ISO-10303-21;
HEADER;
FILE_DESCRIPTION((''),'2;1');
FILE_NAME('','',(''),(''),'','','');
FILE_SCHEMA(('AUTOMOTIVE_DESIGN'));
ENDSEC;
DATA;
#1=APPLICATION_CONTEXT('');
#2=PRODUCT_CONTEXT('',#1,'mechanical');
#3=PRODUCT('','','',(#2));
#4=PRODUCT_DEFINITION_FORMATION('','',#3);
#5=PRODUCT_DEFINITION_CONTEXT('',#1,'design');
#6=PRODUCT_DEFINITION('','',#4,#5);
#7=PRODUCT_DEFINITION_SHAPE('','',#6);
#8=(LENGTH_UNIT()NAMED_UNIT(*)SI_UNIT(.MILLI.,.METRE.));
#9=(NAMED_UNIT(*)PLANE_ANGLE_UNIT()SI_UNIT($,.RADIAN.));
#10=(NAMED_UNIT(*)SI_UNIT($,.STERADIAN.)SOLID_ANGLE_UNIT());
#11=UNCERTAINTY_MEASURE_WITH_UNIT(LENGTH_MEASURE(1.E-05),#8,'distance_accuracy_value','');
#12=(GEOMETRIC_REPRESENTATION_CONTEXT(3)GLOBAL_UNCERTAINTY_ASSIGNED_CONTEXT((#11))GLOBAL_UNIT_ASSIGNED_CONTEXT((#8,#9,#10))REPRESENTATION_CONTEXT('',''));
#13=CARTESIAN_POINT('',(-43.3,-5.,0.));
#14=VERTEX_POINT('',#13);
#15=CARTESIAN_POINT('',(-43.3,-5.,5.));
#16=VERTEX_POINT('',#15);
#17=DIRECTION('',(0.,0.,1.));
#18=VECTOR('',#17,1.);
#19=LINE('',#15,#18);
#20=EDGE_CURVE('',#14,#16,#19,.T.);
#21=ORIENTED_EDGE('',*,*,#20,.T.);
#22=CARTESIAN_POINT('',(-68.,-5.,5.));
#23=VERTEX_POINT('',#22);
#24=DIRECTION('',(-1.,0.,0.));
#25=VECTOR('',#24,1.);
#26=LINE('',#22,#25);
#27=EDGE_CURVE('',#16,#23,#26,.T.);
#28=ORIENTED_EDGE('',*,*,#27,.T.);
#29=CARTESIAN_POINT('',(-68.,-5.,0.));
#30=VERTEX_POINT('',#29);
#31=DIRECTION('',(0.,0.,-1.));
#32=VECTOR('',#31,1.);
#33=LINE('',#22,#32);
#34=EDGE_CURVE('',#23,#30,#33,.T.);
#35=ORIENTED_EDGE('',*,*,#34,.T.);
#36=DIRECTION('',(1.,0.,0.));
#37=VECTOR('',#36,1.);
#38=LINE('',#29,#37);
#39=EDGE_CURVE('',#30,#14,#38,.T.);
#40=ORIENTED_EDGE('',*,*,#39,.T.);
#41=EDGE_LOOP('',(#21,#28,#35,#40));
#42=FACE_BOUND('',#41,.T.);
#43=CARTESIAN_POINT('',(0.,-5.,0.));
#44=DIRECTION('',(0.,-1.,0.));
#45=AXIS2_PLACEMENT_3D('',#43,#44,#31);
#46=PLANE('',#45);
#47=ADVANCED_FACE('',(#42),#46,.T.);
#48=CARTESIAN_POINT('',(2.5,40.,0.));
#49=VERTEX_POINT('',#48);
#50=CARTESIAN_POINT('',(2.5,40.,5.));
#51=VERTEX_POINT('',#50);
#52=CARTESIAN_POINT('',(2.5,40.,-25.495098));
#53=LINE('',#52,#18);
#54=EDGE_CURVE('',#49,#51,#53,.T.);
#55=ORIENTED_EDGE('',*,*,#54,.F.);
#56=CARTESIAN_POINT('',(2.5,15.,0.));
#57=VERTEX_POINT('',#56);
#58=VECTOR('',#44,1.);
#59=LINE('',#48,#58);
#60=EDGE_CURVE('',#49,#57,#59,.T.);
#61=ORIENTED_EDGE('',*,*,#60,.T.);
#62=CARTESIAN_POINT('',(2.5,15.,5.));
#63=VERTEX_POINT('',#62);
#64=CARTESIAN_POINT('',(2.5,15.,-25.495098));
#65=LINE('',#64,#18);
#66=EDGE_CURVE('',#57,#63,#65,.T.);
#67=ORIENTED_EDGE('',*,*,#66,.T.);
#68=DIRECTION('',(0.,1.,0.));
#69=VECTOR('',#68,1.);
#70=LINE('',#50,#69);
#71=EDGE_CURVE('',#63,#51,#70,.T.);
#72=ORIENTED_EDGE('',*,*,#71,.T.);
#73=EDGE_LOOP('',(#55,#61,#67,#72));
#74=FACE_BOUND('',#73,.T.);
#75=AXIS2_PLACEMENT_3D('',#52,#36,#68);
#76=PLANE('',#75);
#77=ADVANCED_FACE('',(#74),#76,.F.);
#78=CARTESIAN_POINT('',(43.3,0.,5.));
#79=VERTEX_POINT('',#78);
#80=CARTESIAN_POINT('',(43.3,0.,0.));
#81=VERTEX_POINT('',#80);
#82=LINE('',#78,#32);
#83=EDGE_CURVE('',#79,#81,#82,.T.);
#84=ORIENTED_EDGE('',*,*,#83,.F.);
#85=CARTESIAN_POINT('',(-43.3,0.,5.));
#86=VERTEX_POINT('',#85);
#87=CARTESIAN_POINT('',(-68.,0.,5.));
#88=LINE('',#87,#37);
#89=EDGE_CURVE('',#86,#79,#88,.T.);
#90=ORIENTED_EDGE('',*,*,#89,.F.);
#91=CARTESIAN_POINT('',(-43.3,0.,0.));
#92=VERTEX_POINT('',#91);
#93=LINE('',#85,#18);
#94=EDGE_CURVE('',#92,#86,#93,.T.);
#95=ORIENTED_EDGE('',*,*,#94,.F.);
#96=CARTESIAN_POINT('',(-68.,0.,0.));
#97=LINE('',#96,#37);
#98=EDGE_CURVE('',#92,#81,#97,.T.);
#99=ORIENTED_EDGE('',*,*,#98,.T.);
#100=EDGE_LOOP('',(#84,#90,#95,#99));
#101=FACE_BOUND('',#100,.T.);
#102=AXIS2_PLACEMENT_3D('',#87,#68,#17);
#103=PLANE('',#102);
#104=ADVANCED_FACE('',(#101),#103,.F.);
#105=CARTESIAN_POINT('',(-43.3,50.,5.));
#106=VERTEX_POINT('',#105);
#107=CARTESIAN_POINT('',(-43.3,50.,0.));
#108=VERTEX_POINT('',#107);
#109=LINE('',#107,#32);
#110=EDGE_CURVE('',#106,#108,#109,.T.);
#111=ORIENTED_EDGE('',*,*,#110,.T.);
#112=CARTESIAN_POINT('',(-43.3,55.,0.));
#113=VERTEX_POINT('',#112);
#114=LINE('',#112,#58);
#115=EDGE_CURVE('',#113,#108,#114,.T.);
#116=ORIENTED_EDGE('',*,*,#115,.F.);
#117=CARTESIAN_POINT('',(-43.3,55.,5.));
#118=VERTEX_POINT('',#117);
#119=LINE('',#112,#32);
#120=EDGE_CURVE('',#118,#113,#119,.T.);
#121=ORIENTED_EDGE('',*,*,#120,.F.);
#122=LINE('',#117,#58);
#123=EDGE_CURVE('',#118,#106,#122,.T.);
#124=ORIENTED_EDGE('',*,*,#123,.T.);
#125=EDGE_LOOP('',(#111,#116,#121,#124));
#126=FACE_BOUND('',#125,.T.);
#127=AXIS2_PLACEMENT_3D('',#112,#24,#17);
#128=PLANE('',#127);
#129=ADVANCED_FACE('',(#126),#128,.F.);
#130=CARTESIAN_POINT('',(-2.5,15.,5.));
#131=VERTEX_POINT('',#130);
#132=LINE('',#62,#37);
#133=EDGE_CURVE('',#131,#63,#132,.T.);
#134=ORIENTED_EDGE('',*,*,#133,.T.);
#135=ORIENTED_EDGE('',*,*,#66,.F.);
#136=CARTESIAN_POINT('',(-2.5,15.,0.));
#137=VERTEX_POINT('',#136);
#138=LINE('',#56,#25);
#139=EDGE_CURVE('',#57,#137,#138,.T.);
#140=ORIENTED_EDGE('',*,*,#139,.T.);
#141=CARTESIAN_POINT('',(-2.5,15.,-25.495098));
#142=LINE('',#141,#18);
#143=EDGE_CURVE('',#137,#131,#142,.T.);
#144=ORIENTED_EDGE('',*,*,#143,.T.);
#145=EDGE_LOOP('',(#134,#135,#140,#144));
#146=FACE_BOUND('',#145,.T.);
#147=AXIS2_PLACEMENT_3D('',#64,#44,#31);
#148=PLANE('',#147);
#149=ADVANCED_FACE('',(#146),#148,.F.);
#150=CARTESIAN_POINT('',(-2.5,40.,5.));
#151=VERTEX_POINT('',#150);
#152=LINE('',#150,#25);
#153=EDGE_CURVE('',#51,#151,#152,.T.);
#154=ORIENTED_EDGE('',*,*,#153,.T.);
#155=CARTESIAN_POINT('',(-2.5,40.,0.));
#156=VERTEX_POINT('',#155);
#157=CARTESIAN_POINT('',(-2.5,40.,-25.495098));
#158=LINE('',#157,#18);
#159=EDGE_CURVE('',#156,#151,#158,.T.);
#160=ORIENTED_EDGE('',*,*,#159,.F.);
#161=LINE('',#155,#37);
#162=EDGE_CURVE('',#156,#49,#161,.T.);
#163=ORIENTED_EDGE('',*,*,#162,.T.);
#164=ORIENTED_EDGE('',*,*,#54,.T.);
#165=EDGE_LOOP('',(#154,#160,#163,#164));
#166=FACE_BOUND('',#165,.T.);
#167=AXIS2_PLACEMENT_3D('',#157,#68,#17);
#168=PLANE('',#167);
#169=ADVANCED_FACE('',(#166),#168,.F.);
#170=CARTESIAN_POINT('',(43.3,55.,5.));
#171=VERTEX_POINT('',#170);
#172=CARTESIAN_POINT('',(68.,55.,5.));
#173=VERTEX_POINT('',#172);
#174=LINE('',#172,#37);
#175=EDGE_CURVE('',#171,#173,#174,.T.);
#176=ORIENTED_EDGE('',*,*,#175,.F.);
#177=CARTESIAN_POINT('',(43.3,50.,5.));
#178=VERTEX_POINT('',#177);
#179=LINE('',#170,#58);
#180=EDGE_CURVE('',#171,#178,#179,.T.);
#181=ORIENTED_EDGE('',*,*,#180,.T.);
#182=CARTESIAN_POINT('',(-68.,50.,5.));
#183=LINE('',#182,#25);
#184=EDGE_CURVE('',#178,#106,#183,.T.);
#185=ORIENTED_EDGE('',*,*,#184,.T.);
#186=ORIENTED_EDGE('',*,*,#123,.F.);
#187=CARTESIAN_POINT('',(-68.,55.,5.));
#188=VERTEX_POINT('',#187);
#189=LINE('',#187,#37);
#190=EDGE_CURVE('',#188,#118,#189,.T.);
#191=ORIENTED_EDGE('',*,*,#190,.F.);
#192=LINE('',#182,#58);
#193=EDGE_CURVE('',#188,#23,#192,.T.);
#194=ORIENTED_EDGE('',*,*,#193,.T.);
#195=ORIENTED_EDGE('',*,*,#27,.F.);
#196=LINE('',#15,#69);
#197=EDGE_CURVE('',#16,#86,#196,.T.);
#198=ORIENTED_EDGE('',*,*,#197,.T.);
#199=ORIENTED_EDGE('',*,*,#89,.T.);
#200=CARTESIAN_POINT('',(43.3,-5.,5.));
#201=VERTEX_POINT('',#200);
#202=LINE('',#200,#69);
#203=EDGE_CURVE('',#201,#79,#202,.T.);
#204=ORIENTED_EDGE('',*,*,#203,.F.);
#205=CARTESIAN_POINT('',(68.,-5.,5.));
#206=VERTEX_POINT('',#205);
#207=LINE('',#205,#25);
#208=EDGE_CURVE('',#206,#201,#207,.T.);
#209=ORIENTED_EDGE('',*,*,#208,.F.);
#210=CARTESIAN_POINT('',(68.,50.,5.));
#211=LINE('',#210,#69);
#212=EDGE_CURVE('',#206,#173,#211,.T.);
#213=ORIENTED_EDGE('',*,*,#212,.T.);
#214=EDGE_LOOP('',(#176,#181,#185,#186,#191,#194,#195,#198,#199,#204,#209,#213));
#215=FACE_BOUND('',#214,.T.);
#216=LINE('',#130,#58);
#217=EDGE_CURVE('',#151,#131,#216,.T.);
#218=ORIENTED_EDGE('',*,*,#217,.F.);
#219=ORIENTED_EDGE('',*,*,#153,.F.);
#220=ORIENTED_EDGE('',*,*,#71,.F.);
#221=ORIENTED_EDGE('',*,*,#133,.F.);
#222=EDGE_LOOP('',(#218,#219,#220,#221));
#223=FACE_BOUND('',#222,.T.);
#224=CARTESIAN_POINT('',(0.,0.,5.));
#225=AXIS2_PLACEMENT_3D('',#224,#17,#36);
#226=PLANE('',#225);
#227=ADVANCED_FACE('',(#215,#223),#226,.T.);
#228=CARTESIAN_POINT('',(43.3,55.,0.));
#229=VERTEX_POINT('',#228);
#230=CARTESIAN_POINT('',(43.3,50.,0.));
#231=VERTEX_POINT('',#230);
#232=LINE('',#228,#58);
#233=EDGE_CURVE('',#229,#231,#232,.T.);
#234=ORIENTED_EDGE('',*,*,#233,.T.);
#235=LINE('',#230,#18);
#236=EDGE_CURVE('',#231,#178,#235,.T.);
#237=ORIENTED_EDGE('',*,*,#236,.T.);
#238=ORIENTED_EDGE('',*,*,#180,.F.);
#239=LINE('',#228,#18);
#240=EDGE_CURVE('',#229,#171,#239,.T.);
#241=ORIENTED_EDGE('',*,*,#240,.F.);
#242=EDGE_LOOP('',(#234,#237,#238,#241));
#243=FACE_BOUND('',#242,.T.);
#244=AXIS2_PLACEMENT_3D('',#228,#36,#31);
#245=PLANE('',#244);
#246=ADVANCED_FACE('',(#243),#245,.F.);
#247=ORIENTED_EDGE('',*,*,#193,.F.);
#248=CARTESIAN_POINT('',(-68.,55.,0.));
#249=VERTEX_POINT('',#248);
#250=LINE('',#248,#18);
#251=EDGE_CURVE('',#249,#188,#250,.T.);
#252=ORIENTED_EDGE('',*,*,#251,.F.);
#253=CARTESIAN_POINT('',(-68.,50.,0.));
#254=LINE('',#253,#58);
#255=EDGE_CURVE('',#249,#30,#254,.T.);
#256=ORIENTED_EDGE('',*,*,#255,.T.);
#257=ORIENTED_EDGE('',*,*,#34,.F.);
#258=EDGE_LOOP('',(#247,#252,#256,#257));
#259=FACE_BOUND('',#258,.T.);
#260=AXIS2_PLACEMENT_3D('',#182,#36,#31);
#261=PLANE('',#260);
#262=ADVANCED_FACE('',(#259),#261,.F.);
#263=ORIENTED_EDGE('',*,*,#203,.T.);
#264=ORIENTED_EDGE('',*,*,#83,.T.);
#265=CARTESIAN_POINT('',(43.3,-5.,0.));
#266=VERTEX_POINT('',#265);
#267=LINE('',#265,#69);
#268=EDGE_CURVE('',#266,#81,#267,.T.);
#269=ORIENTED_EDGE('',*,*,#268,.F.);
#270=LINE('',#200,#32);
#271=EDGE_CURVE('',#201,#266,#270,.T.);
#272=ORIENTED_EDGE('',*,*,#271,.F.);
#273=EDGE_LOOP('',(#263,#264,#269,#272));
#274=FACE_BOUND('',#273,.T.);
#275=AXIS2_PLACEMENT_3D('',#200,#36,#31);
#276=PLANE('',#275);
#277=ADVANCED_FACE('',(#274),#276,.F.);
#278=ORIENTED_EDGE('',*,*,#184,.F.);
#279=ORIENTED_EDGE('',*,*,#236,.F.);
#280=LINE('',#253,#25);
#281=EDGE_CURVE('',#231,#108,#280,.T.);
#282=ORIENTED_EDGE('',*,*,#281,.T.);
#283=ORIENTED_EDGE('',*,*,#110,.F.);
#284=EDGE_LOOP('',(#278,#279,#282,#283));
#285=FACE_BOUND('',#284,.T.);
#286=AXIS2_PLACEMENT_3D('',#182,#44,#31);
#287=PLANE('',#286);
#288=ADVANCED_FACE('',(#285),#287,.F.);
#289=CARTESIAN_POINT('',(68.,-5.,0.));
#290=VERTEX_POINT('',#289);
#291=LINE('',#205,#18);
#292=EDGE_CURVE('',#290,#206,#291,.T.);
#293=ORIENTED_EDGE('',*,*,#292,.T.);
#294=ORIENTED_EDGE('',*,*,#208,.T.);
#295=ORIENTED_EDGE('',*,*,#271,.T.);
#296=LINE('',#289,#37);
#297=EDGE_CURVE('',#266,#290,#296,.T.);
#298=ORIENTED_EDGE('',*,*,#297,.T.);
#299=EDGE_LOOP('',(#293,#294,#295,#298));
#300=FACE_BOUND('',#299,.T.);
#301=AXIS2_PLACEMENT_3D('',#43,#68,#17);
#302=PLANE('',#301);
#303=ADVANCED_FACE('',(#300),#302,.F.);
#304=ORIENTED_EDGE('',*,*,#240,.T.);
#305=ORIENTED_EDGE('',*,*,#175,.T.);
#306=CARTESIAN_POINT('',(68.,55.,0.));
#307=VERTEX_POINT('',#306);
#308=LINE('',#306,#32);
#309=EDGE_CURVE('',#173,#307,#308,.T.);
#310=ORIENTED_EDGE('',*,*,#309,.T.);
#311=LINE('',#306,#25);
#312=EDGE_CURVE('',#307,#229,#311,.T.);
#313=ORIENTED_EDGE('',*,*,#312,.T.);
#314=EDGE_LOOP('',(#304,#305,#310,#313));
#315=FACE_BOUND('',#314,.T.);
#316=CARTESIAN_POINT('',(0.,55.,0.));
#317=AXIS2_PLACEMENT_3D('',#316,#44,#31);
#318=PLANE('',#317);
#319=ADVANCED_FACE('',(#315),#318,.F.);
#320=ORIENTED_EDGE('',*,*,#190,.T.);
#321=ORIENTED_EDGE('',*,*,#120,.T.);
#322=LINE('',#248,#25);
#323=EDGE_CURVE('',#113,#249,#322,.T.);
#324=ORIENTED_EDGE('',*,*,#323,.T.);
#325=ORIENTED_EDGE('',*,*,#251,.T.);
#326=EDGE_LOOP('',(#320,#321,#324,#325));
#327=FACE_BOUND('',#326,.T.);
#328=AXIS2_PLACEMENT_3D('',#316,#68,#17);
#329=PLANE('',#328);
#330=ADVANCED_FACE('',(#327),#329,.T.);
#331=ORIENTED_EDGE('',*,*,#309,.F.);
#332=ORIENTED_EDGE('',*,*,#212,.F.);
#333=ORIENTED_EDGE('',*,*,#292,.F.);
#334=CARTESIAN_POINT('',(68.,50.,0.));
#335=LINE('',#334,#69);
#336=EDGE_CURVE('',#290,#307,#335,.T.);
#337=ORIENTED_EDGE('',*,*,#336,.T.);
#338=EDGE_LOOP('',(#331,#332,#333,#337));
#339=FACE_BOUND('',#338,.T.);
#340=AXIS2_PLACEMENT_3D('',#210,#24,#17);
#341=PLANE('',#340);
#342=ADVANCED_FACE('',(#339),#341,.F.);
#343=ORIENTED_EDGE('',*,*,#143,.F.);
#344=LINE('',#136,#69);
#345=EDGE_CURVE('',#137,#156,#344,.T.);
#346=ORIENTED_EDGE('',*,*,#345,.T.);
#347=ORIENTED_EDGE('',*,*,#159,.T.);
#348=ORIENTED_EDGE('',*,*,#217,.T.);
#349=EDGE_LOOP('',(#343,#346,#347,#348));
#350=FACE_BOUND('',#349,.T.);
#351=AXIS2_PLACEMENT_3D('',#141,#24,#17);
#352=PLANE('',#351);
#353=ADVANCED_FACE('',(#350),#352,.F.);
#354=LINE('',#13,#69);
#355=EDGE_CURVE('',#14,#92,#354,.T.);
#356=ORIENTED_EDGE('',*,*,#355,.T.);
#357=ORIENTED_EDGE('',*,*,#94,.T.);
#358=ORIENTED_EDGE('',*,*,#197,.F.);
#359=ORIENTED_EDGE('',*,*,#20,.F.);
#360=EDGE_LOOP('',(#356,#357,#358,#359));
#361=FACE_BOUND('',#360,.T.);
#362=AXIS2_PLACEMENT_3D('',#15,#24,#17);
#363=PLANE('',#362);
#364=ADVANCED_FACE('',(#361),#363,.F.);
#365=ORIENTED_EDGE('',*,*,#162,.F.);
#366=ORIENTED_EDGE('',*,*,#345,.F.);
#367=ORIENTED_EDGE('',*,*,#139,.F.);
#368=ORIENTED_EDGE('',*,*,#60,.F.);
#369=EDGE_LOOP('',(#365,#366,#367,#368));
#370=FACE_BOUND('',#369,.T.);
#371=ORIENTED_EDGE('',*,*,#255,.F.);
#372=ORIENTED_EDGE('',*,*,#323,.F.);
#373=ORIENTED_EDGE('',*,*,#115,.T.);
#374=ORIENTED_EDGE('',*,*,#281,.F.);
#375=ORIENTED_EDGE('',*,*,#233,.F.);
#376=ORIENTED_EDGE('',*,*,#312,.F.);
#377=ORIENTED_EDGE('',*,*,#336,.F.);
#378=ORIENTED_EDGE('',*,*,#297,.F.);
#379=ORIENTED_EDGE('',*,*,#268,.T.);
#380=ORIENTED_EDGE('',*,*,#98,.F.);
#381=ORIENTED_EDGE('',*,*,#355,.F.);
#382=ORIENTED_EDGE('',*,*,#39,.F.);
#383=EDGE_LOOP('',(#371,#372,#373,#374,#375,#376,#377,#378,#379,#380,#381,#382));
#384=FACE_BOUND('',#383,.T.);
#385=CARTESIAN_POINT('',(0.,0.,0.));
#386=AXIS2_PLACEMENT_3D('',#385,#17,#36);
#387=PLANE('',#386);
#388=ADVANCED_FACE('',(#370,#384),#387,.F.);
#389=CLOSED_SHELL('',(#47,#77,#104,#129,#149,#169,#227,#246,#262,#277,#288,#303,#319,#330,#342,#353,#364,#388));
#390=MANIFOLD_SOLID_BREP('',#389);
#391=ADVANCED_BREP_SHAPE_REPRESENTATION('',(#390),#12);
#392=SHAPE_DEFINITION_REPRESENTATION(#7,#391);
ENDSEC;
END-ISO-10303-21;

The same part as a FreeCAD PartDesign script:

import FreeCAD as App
import Part
import Sketcher

V = App.Vector

doc = App.newDocument("Part")
body = doc.addObject("PartDesign::Body", "Body")

# Sketch on XY plane
sketch1 = body.newObject("Sketcher::SketchObject", "Sketch")
sketch1.AttachmentSupport = (doc.getObject("XY_Plane"), [""])
sketch1.MapMode = "FlatFace"
sketch1.addGeometry([
    Part.LineSegment(V(-68, 50, 0), V(-68, 0, 0)),
    Part.LineSegment(V(-68, 0, 0), V(68, 0, 0)),
    Part.LineSegment(V(68, 0, 0), V(68, 50, 0)),
    Part.LineSegment(V(68, 50, 0), V(-68, 50, 0)),
], False)
sketch1.addConstraint([
    Sketcher.Constraint("Coincident", 0, 2, 1, 1),
    Sketcher.Constraint("Coincident", 1, 2, 2, 1),
    Sketcher.Constraint("Coincident", 2, 2, 3, 1),
    Sketcher.Constraint("Coincident", 3, 2, 0, 1),
    Sketcher.Constraint("Vertical", 0),
    Sketcher.Constraint("Horizontal", 1),
    Sketcher.Constraint("Vertical", 2),
    Sketcher.Constraint("Horizontal", 3),
    Sketcher.Constraint("Symmetric", 0, 2, 1, 2, -1, 1),
    Sketcher.Constraint("DistanceX", 1, 1, 1, 2, 136.0),
    Sketcher.Constraint("DistanceY", 0, 2, 0, 1, 50.0),
])
pad1 = body.newObject("PartDesign::Pad", "Pad")
pad1.Profile = sketch1
pad1.Length = 5

# Sketch on XZ plane
sketch2 = body.newObject("Sketcher::SketchObject", "Sketch001")
sketch2.AttachmentSupport = (doc.getObject("XZ_Plane"), [""])
sketch2.MapMode = "FlatFace"
sketch2.AttachmentOffset = App.Placement(V(0, 0, -50), App.Rotation())
sketch2.addGeometry([
    Part.LineSegment(V(-68, 0, 0), V(-68, 5, 0)),  # 0
    Part.LineSegment(V(-68, 5, 0), V(-43.3, 5, 0)),  # 1
    Part.LineSegment(V(-43.3, 5, 0), V(-43.3, 0, 0)),  # 2
    Part.LineSegment(V(-43.3, 0, 0), V(-68, 0, 0)),  # 3
    Part.LineSegment(V(43.3, 0, 0), V(43.3, 5, 0)),  # 4
    Part.LineSegment(V(43.3, 5, 0), V(68, 5, 0)),  # 5
    Part.LineSegment(V(68, 5, 0), V(68, 0, 0)),  # 6
    Part.LineSegment(V(68, 0, 0), V(43.3, 0, 0)),  # 7
], False)
sketch2.addConstraint([
    Sketcher.Constraint("Coincident", 0, 2, 1, 1),
    Sketcher.Constraint("Coincident", 1, 2, 2, 1),
    Sketcher.Constraint("Coincident", 2, 2, 3, 1),
    Sketcher.Constraint("Coincident", 3, 2, 0, 1),
    Sketcher.Constraint("Coincident", 4, 2, 5, 1),
    Sketcher.Constraint("Coincident", 5, 2, 6, 1),
    Sketcher.Constraint("Coincident", 6, 2, 7, 1),
    Sketcher.Constraint("Coincident", 7, 2, 4, 1),
    Sketcher.Constraint("Vertical", 0),
    Sketcher.Constraint("Horizontal", 1),
    Sketcher.Constraint("Vertical", 2),
    Sketcher.Constraint("Horizontal", 3),
    Sketcher.Constraint("Vertical", 4),
    Sketcher.Constraint("Horizontal", 5),
    Sketcher.Constraint("Vertical", 6),
    Sketcher.Constraint("Horizontal", 7),
    Sketcher.Constraint("Symmetric", 3, 2, 6, 2, -1, 1),
    Sketcher.Constraint("Symmetric", 1, 2, 4, 2, -2),
    Sketcher.Constraint("PointOnObject", 2, 2, -1),
    Sketcher.Constraint("DistanceY", 0, 1, 0, 2, 5.0),
    Sketcher.Constraint("DistanceX", 1, 1, 1, 2, 24.7),
    Sketcher.Constraint("DistanceX", 0, 2, -1, 1, 68.0),
])
pad2 = body.newObject("PartDesign::Pad", "Pad001")
pad2.Profile = sketch2
pad2.Length = 5
pad2.Reversed = True

# Sketch on XZ plane
sketch3 = body.newObject("Sketcher::SketchObject", "Sketch002")
sketch3.AttachmentSupport = (doc.getObject("XZ_Plane"), [""])
sketch3.MapMode = "FlatFace"
sketch3.addGeometry([
    Part.LineSegment(V(-68, 5, 0), V(-68, 0, 0)),  # 0
    Part.LineSegment(V(-68, 0, 0), V(-43.3, 0, 0)),  # 1
    Part.LineSegment(V(-43.3, 0, 0), V(-43.3, 5, 0)),  # 2
    Part.LineSegment(V(-43.3, 5, 0), V(-68, 5, 0)),  # 3
    Part.LineSegment(V(43.3, 5, 0), V(43.3, 0, 0)),  # 4
    Part.LineSegment(V(43.3, 0, 0), V(68, 0, 0)),  # 5
    Part.LineSegment(V(68, 0, 0), V(68, 5, 0)),  # 6
    Part.LineSegment(V(68, 5, 0), V(43.3, 5, 0)),  # 7
], False)
sketch3.addConstraint([
    Sketcher.Constraint("Coincident", 0, 2, 1, 1),
    Sketcher.Constraint("Coincident", 1, 2, 2, 1),
    Sketcher.Constraint("Coincident", 2, 2, 3, 1),
    Sketcher.Constraint("Coincident", 3, 2, 0, 1),
    Sketcher.Constraint("Coincident", 4, 2, 5, 1),
    Sketcher.Constraint("Coincident", 5, 2, 6, 1),
    Sketcher.Constraint("Coincident", 6, 2, 7, 1),
    Sketcher.Constraint("Coincident", 7, 2, 4, 1),
    Sketcher.Constraint("Vertical", 0),
    Sketcher.Constraint("Horizontal", 1),
    Sketcher.Constraint("Vertical", 2),
    Sketcher.Constraint("Horizontal", 3),
    Sketcher.Constraint("Vertical", 4),
    Sketcher.Constraint("Horizontal", 5),
    Sketcher.Constraint("Vertical", 6),
    Sketcher.Constraint("Horizontal", 7),
    Sketcher.Constraint("Symmetric", 1, 2, 4, 2, -1, 1),
    Sketcher.Constraint("Symmetric", 0, 2, 5, 2, -2),
    Sketcher.Constraint("Horizontal", 3, 2, 6, 2),
    Sketcher.Constraint("DistanceY", 0, 2, 0, 1, 5.0),
    Sketcher.Constraint("DistanceX", 1, 1, 1, 2, 24.7),
    Sketcher.Constraint("DistanceX", 0, 2, -1, 1, 68.0),
])
pad3 = body.newObject("PartDesign::Pad", "Pad002")
pad3.Profile = sketch3
pad3.Length = 5

# Sketch on XY plane
sketch4 = body.newObject("Sketcher::SketchObject", "Sketch003")
sketch4.AttachmentSupport = (doc.getObject("XY_Plane"), [""])
sketch4.MapMode = "FlatFace"
sketch4.AttachmentOffset = App.Placement(V(0, 0, 5), App.Rotation())
sketch4.addGeometry([
    Part.LineSegment(V(-2.5, 40, 0), V(-2.5, 15, 0)),
    Part.LineSegment(V(-2.5, 15, 0), V(2.5, 15, 0)),
    Part.LineSegment(V(2.5, 15, 0), V(2.5, 40, 0)),
    Part.LineSegment(V(2.5, 40, 0), V(-2.5, 40, 0)),
], False)
sketch4.addConstraint([
    Sketcher.Constraint("Coincident", 0, 2, 1, 1),
    Sketcher.Constraint("Coincident", 1, 2, 2, 1),
    Sketcher.Constraint("Coincident", 2, 2, 3, 1),
    Sketcher.Constraint("Coincident", 3, 2, 0, 1),
    Sketcher.Constraint("Vertical", 0),
    Sketcher.Constraint("Horizontal", 1),
    Sketcher.Constraint("Vertical", 2),
    Sketcher.Constraint("Horizontal", 3),
    Sketcher.Constraint("DistanceX", 1, 1, 1, 2, 5.0),
    Sketcher.Constraint("DistanceY", 0, 2, 0, 1, 25.0),
    Sketcher.Constraint("DistanceY", -1, 1, 0, 2, 15.0),
    Sketcher.Constraint("DistanceX", 0, 2, -1, 1, 2.5),
])
pocket1 = body.newObject("PartDesign::Pocket", "Pocket")
pocket1.Profile = sketch4
pocket1.Length = 5

doc.recompute()
